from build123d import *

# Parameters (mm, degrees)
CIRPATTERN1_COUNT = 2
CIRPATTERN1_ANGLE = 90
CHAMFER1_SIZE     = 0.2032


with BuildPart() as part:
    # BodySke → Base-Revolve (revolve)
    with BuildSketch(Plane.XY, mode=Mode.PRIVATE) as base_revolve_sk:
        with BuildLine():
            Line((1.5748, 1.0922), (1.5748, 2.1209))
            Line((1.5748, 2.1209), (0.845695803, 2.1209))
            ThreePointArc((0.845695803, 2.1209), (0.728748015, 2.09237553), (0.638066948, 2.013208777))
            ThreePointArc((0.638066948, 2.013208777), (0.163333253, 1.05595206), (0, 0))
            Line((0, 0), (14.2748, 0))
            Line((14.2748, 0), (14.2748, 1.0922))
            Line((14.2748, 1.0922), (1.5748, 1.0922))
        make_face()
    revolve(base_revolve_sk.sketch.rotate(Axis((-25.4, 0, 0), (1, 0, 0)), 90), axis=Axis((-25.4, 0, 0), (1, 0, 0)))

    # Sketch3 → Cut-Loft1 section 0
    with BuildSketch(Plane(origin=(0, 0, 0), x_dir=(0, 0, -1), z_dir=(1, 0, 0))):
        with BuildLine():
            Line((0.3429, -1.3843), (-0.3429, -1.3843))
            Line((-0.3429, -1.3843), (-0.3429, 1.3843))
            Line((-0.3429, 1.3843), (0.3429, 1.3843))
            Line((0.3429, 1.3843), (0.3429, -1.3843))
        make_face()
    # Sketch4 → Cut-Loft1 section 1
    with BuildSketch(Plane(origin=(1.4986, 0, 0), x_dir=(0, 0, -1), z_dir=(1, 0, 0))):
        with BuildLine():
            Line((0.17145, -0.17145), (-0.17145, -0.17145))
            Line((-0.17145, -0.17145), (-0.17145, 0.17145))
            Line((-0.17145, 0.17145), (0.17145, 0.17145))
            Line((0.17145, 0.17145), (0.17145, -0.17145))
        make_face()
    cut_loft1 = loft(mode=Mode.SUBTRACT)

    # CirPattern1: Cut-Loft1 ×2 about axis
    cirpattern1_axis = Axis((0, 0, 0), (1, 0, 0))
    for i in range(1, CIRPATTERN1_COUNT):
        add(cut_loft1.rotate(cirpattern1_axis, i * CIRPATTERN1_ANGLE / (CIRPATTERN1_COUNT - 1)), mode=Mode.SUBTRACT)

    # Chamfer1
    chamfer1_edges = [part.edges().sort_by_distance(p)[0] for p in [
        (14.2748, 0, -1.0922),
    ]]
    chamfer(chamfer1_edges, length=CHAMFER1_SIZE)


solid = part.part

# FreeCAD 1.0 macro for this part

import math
import FreeCAD as App
import Part
import Sketcher
Q = App.Units.Quantity


def edges_at(feature, points):
    """Names of the edges that pass closest to the given points."""
    edges = feature.Shape.Edges
    near = lambda p: min(range(len(edges)), key=lambda i: edges[i].distToShape(Part.Vertex(*p))[0])
    return sorted({f"Edge{near(p) + 1}" for p in points})


def add_polygon(sketch, points):
    """Adds a closed chain of lines whose ends are joined by coincident constraints."""
    first, n = sketch.GeometryCount, len(points)
    for a, b in zip(points, points[1:] + points[:1]):
        sketch.addGeometry(Part.LineSegment(App.Vector(*a, 0), App.Vector(*b, 0)), False)
    for i in range(n):
        sketch.addConstraint(Sketcher.Constraint("Coincident", first + i, 2, first + (i + 1) % n, 1))

doc = App.newDocument("Part")
params = doc.addObject("Spreadsheet::Sheet", "Params")
for row, (alias, value) in enumerate([
    ("sketch1_radius", "0.01 in"),
    ("sketch1_width", "0.5 in"),
    ("sketch1_width2", "0.562 in"),
    ("sketch1_height", "0.043 in"),
    ("revolution_angle", "360 deg"),
    ("sketch2_width", "0.109 in"),
    ("sketch2_height", "0.027 in"),
    ("chamfer_size", "0.008 in"),
], start=1):
    params.set(f"A{row}", alias)
    params.set(f"B{row}", "=" + value)
    params.setAlias(f"B{row}", alias)

body = doc.addObject("PartDesign::Body", "Body")

sketch1 = body.newObject("Sketcher::SketchObject", "Sketch")
sketch1.AttachmentSupport = (doc.getObject("XY_Plane"), [""])
sketch1.MapMode = "FlatFace"
sketch1.addGeometry([
    Part.LineSegment(App.Vector(1.57, 1.09, 0), App.Vector(1.57, 2.12, 0)),
    Part.LineSegment(App.Vector(1.57, 2.12, 0), App.Vector(0.85, 2.12, 0)),
    Part.ArcOfCircle(Part.Circle(App.Vector(0.85, 1.87, 0), App.Vector(0, 0, 1), 0.25), math.radians(90), math.radians(145)),
    Part.ArcOfCircle(Part.Circle(App.Vector(3.5, 0, 0), App.Vector(0, 0, 1), 3.5), math.radians(145), math.radians(180)),
    Part.LineSegment(App.Vector(0, 0, 0), App.Vector(14.27, 0, 0)),
    Part.LineSegment(App.Vector(14.27, 0, 0), App.Vector(14.27, 1.09, 0)),
    Part.LineSegment(App.Vector(14.27, 1.09, 0), App.Vector(1.57, 1.09, 0)),
], False)
sketch1.addConstraint([
    Sketcher.Constraint("Coincident", 0, 2, 1, 1),
    Sketcher.Constraint("Tangent", 1, 2, 2, 1),
    Sketcher.Constraint("Tangent", 2, 2, 3, 1),
    Sketcher.Constraint("Coincident", 3, 2, 4, 1),
    Sketcher.Constraint("Coincident", 4, 2, 5, 1),
    Sketcher.Constraint("Coincident", 5, 2, 6, 1),
    Sketcher.Constraint("Coincident", 6, 2, 0, 1),
    Sketcher.Constraint("Vertical", 0),
    Sketcher.Constraint("Horizontal", 1),
    Sketcher.Constraint("Horizontal", 4),
    Sketcher.Constraint("Vertical", 5),
    Sketcher.Constraint("Horizontal", 6),
    Sketcher.Constraint("Coincident", 3, 2, -1, 1),
    Sketcher.Constraint("PointOnObject", 3, 3, -1),
    Sketcher.Constraint("Radius", 2, Q("0.01 in")),
    Sketcher.Constraint("DistanceX", 6, 2, 6, 1, Q("0.5 in")),
    Sketcher.Constraint("Radius", 3, Q("0.1376 in")),
    Sketcher.Constraint("DistanceX", 4, 1, 4, 2, Q("0.562 in")),
    Sketcher.Constraint("DistanceY", 5, 1, 5, 2, Q("0.043 in")),
    Sketcher.Constraint("DistanceY", 0, 1, 0, 2, Q("0.0405 in")),
])
sketch1.setExpression("Constraints[14]", "Params.sketch1_radius")
sketch1.setExpression("Constraints[15]", "Params.sketch1_width")
sketch1.setExpression("Constraints[17]", "Params.sketch1_width2")
sketch1.setExpression("Constraints[18]", "Params.sketch1_height")
revolution = body.newObject("PartDesign::Revolution", "Revolution")
revolution.Profile = sketch1
revolution.ReferenceAxis = (sketch1, ["H_Axis"])
revolution.setExpression("Angle", "Params.revolution_angle")

sketch2 = body.newObject("Sketcher::SketchObject", "Sketch001")
sketch2.AttachmentSupport = (doc.getObject("YZ_Plane"), [""])
sketch2.MapMode = "FlatFace"
add_polygon(sketch2, [(-1.4, 0.3), (-1.4, -0.3), (1.4, -0.3), (1.4, 0.3)])
sketch2.addConstraint([
    Sketcher.Constraint("Vertical", 0),
    Sketcher.Constraint("Horizontal", 1),
    Sketcher.Constraint("Vertical", 2),
    Sketcher.Constraint("Horizontal", 3),
    Sketcher.Constraint("Symmetric", 0, 2, 2, 2, -1, 1),
    Sketcher.Constraint("DistanceX", 1, 1, 1, 2, Q("0.109 in")),
    Sketcher.Constraint("DistanceY", 0, 2, 0, 1, Q("0.027 in")),
])
sketch2.setExpression("Constraints[9]", "Params.sketch2_width")
sketch2.setExpression("Constraints[10]", "Params.sketch2_height")

sketch3 = body.newObject("Sketcher::SketchObject", "Sketch002")
sketch3.AttachmentSupport = (doc.getObject("YZ_Plane"), [""])
sketch3.MapMode = "FlatFace"
sketch3.AttachmentOffset = App.Placement(App.Vector(0, 0, 0.059 * 25.4), App.Rotation())
add_polygon(sketch3, [(-0.17, 0.17), (-0.17, -0.17), (0.17, -0.17), (0.17, 0.17)])
sketch3.addConstraint([
    Sketcher.Constraint("Vertical", 0),
    Sketcher.Constraint("Horizontal", 1),
    Sketcher.Constraint("Vertical", 2),
    Sketcher.Constraint("Horizontal", 3),
    Sketcher.Constraint("Symmetric", 0, 2, 2, 2, -1, 1),
    Sketcher.Constraint("Equal", 3, 0),
    Sketcher.Constraint("DistanceX", 1, 1, 1, 2, Q("0.0135 in")),
])

subtractiveloft = body.newObject("PartDesign::SubtractiveLoft", "SubtractiveLoft")
subtractiveloft.Profile = sketch2
subtractiveloft.Sections = [sketch3]
doc.recompute()

polarpattern = body.newObject("PartDesign::PolarPattern", "PolarPattern")
polarpattern.Originals = [subtractiveloft]
polarpattern.Axis = (doc.getObject("X_Axis"), [""])
polarpattern.Angle = 90
polarpattern.Occurrences = 2
body.Tip = polarpattern
doc.recompute()

chamfer = body.newObject("PartDesign::Chamfer", "Chamfer")
chamfer.Base = (polarpattern, edges_at(polarpattern, [(14.275, 0, -1.092)]))
chamfer.setExpression("Size", "Params.chamfer_size")

doc.recompute()
